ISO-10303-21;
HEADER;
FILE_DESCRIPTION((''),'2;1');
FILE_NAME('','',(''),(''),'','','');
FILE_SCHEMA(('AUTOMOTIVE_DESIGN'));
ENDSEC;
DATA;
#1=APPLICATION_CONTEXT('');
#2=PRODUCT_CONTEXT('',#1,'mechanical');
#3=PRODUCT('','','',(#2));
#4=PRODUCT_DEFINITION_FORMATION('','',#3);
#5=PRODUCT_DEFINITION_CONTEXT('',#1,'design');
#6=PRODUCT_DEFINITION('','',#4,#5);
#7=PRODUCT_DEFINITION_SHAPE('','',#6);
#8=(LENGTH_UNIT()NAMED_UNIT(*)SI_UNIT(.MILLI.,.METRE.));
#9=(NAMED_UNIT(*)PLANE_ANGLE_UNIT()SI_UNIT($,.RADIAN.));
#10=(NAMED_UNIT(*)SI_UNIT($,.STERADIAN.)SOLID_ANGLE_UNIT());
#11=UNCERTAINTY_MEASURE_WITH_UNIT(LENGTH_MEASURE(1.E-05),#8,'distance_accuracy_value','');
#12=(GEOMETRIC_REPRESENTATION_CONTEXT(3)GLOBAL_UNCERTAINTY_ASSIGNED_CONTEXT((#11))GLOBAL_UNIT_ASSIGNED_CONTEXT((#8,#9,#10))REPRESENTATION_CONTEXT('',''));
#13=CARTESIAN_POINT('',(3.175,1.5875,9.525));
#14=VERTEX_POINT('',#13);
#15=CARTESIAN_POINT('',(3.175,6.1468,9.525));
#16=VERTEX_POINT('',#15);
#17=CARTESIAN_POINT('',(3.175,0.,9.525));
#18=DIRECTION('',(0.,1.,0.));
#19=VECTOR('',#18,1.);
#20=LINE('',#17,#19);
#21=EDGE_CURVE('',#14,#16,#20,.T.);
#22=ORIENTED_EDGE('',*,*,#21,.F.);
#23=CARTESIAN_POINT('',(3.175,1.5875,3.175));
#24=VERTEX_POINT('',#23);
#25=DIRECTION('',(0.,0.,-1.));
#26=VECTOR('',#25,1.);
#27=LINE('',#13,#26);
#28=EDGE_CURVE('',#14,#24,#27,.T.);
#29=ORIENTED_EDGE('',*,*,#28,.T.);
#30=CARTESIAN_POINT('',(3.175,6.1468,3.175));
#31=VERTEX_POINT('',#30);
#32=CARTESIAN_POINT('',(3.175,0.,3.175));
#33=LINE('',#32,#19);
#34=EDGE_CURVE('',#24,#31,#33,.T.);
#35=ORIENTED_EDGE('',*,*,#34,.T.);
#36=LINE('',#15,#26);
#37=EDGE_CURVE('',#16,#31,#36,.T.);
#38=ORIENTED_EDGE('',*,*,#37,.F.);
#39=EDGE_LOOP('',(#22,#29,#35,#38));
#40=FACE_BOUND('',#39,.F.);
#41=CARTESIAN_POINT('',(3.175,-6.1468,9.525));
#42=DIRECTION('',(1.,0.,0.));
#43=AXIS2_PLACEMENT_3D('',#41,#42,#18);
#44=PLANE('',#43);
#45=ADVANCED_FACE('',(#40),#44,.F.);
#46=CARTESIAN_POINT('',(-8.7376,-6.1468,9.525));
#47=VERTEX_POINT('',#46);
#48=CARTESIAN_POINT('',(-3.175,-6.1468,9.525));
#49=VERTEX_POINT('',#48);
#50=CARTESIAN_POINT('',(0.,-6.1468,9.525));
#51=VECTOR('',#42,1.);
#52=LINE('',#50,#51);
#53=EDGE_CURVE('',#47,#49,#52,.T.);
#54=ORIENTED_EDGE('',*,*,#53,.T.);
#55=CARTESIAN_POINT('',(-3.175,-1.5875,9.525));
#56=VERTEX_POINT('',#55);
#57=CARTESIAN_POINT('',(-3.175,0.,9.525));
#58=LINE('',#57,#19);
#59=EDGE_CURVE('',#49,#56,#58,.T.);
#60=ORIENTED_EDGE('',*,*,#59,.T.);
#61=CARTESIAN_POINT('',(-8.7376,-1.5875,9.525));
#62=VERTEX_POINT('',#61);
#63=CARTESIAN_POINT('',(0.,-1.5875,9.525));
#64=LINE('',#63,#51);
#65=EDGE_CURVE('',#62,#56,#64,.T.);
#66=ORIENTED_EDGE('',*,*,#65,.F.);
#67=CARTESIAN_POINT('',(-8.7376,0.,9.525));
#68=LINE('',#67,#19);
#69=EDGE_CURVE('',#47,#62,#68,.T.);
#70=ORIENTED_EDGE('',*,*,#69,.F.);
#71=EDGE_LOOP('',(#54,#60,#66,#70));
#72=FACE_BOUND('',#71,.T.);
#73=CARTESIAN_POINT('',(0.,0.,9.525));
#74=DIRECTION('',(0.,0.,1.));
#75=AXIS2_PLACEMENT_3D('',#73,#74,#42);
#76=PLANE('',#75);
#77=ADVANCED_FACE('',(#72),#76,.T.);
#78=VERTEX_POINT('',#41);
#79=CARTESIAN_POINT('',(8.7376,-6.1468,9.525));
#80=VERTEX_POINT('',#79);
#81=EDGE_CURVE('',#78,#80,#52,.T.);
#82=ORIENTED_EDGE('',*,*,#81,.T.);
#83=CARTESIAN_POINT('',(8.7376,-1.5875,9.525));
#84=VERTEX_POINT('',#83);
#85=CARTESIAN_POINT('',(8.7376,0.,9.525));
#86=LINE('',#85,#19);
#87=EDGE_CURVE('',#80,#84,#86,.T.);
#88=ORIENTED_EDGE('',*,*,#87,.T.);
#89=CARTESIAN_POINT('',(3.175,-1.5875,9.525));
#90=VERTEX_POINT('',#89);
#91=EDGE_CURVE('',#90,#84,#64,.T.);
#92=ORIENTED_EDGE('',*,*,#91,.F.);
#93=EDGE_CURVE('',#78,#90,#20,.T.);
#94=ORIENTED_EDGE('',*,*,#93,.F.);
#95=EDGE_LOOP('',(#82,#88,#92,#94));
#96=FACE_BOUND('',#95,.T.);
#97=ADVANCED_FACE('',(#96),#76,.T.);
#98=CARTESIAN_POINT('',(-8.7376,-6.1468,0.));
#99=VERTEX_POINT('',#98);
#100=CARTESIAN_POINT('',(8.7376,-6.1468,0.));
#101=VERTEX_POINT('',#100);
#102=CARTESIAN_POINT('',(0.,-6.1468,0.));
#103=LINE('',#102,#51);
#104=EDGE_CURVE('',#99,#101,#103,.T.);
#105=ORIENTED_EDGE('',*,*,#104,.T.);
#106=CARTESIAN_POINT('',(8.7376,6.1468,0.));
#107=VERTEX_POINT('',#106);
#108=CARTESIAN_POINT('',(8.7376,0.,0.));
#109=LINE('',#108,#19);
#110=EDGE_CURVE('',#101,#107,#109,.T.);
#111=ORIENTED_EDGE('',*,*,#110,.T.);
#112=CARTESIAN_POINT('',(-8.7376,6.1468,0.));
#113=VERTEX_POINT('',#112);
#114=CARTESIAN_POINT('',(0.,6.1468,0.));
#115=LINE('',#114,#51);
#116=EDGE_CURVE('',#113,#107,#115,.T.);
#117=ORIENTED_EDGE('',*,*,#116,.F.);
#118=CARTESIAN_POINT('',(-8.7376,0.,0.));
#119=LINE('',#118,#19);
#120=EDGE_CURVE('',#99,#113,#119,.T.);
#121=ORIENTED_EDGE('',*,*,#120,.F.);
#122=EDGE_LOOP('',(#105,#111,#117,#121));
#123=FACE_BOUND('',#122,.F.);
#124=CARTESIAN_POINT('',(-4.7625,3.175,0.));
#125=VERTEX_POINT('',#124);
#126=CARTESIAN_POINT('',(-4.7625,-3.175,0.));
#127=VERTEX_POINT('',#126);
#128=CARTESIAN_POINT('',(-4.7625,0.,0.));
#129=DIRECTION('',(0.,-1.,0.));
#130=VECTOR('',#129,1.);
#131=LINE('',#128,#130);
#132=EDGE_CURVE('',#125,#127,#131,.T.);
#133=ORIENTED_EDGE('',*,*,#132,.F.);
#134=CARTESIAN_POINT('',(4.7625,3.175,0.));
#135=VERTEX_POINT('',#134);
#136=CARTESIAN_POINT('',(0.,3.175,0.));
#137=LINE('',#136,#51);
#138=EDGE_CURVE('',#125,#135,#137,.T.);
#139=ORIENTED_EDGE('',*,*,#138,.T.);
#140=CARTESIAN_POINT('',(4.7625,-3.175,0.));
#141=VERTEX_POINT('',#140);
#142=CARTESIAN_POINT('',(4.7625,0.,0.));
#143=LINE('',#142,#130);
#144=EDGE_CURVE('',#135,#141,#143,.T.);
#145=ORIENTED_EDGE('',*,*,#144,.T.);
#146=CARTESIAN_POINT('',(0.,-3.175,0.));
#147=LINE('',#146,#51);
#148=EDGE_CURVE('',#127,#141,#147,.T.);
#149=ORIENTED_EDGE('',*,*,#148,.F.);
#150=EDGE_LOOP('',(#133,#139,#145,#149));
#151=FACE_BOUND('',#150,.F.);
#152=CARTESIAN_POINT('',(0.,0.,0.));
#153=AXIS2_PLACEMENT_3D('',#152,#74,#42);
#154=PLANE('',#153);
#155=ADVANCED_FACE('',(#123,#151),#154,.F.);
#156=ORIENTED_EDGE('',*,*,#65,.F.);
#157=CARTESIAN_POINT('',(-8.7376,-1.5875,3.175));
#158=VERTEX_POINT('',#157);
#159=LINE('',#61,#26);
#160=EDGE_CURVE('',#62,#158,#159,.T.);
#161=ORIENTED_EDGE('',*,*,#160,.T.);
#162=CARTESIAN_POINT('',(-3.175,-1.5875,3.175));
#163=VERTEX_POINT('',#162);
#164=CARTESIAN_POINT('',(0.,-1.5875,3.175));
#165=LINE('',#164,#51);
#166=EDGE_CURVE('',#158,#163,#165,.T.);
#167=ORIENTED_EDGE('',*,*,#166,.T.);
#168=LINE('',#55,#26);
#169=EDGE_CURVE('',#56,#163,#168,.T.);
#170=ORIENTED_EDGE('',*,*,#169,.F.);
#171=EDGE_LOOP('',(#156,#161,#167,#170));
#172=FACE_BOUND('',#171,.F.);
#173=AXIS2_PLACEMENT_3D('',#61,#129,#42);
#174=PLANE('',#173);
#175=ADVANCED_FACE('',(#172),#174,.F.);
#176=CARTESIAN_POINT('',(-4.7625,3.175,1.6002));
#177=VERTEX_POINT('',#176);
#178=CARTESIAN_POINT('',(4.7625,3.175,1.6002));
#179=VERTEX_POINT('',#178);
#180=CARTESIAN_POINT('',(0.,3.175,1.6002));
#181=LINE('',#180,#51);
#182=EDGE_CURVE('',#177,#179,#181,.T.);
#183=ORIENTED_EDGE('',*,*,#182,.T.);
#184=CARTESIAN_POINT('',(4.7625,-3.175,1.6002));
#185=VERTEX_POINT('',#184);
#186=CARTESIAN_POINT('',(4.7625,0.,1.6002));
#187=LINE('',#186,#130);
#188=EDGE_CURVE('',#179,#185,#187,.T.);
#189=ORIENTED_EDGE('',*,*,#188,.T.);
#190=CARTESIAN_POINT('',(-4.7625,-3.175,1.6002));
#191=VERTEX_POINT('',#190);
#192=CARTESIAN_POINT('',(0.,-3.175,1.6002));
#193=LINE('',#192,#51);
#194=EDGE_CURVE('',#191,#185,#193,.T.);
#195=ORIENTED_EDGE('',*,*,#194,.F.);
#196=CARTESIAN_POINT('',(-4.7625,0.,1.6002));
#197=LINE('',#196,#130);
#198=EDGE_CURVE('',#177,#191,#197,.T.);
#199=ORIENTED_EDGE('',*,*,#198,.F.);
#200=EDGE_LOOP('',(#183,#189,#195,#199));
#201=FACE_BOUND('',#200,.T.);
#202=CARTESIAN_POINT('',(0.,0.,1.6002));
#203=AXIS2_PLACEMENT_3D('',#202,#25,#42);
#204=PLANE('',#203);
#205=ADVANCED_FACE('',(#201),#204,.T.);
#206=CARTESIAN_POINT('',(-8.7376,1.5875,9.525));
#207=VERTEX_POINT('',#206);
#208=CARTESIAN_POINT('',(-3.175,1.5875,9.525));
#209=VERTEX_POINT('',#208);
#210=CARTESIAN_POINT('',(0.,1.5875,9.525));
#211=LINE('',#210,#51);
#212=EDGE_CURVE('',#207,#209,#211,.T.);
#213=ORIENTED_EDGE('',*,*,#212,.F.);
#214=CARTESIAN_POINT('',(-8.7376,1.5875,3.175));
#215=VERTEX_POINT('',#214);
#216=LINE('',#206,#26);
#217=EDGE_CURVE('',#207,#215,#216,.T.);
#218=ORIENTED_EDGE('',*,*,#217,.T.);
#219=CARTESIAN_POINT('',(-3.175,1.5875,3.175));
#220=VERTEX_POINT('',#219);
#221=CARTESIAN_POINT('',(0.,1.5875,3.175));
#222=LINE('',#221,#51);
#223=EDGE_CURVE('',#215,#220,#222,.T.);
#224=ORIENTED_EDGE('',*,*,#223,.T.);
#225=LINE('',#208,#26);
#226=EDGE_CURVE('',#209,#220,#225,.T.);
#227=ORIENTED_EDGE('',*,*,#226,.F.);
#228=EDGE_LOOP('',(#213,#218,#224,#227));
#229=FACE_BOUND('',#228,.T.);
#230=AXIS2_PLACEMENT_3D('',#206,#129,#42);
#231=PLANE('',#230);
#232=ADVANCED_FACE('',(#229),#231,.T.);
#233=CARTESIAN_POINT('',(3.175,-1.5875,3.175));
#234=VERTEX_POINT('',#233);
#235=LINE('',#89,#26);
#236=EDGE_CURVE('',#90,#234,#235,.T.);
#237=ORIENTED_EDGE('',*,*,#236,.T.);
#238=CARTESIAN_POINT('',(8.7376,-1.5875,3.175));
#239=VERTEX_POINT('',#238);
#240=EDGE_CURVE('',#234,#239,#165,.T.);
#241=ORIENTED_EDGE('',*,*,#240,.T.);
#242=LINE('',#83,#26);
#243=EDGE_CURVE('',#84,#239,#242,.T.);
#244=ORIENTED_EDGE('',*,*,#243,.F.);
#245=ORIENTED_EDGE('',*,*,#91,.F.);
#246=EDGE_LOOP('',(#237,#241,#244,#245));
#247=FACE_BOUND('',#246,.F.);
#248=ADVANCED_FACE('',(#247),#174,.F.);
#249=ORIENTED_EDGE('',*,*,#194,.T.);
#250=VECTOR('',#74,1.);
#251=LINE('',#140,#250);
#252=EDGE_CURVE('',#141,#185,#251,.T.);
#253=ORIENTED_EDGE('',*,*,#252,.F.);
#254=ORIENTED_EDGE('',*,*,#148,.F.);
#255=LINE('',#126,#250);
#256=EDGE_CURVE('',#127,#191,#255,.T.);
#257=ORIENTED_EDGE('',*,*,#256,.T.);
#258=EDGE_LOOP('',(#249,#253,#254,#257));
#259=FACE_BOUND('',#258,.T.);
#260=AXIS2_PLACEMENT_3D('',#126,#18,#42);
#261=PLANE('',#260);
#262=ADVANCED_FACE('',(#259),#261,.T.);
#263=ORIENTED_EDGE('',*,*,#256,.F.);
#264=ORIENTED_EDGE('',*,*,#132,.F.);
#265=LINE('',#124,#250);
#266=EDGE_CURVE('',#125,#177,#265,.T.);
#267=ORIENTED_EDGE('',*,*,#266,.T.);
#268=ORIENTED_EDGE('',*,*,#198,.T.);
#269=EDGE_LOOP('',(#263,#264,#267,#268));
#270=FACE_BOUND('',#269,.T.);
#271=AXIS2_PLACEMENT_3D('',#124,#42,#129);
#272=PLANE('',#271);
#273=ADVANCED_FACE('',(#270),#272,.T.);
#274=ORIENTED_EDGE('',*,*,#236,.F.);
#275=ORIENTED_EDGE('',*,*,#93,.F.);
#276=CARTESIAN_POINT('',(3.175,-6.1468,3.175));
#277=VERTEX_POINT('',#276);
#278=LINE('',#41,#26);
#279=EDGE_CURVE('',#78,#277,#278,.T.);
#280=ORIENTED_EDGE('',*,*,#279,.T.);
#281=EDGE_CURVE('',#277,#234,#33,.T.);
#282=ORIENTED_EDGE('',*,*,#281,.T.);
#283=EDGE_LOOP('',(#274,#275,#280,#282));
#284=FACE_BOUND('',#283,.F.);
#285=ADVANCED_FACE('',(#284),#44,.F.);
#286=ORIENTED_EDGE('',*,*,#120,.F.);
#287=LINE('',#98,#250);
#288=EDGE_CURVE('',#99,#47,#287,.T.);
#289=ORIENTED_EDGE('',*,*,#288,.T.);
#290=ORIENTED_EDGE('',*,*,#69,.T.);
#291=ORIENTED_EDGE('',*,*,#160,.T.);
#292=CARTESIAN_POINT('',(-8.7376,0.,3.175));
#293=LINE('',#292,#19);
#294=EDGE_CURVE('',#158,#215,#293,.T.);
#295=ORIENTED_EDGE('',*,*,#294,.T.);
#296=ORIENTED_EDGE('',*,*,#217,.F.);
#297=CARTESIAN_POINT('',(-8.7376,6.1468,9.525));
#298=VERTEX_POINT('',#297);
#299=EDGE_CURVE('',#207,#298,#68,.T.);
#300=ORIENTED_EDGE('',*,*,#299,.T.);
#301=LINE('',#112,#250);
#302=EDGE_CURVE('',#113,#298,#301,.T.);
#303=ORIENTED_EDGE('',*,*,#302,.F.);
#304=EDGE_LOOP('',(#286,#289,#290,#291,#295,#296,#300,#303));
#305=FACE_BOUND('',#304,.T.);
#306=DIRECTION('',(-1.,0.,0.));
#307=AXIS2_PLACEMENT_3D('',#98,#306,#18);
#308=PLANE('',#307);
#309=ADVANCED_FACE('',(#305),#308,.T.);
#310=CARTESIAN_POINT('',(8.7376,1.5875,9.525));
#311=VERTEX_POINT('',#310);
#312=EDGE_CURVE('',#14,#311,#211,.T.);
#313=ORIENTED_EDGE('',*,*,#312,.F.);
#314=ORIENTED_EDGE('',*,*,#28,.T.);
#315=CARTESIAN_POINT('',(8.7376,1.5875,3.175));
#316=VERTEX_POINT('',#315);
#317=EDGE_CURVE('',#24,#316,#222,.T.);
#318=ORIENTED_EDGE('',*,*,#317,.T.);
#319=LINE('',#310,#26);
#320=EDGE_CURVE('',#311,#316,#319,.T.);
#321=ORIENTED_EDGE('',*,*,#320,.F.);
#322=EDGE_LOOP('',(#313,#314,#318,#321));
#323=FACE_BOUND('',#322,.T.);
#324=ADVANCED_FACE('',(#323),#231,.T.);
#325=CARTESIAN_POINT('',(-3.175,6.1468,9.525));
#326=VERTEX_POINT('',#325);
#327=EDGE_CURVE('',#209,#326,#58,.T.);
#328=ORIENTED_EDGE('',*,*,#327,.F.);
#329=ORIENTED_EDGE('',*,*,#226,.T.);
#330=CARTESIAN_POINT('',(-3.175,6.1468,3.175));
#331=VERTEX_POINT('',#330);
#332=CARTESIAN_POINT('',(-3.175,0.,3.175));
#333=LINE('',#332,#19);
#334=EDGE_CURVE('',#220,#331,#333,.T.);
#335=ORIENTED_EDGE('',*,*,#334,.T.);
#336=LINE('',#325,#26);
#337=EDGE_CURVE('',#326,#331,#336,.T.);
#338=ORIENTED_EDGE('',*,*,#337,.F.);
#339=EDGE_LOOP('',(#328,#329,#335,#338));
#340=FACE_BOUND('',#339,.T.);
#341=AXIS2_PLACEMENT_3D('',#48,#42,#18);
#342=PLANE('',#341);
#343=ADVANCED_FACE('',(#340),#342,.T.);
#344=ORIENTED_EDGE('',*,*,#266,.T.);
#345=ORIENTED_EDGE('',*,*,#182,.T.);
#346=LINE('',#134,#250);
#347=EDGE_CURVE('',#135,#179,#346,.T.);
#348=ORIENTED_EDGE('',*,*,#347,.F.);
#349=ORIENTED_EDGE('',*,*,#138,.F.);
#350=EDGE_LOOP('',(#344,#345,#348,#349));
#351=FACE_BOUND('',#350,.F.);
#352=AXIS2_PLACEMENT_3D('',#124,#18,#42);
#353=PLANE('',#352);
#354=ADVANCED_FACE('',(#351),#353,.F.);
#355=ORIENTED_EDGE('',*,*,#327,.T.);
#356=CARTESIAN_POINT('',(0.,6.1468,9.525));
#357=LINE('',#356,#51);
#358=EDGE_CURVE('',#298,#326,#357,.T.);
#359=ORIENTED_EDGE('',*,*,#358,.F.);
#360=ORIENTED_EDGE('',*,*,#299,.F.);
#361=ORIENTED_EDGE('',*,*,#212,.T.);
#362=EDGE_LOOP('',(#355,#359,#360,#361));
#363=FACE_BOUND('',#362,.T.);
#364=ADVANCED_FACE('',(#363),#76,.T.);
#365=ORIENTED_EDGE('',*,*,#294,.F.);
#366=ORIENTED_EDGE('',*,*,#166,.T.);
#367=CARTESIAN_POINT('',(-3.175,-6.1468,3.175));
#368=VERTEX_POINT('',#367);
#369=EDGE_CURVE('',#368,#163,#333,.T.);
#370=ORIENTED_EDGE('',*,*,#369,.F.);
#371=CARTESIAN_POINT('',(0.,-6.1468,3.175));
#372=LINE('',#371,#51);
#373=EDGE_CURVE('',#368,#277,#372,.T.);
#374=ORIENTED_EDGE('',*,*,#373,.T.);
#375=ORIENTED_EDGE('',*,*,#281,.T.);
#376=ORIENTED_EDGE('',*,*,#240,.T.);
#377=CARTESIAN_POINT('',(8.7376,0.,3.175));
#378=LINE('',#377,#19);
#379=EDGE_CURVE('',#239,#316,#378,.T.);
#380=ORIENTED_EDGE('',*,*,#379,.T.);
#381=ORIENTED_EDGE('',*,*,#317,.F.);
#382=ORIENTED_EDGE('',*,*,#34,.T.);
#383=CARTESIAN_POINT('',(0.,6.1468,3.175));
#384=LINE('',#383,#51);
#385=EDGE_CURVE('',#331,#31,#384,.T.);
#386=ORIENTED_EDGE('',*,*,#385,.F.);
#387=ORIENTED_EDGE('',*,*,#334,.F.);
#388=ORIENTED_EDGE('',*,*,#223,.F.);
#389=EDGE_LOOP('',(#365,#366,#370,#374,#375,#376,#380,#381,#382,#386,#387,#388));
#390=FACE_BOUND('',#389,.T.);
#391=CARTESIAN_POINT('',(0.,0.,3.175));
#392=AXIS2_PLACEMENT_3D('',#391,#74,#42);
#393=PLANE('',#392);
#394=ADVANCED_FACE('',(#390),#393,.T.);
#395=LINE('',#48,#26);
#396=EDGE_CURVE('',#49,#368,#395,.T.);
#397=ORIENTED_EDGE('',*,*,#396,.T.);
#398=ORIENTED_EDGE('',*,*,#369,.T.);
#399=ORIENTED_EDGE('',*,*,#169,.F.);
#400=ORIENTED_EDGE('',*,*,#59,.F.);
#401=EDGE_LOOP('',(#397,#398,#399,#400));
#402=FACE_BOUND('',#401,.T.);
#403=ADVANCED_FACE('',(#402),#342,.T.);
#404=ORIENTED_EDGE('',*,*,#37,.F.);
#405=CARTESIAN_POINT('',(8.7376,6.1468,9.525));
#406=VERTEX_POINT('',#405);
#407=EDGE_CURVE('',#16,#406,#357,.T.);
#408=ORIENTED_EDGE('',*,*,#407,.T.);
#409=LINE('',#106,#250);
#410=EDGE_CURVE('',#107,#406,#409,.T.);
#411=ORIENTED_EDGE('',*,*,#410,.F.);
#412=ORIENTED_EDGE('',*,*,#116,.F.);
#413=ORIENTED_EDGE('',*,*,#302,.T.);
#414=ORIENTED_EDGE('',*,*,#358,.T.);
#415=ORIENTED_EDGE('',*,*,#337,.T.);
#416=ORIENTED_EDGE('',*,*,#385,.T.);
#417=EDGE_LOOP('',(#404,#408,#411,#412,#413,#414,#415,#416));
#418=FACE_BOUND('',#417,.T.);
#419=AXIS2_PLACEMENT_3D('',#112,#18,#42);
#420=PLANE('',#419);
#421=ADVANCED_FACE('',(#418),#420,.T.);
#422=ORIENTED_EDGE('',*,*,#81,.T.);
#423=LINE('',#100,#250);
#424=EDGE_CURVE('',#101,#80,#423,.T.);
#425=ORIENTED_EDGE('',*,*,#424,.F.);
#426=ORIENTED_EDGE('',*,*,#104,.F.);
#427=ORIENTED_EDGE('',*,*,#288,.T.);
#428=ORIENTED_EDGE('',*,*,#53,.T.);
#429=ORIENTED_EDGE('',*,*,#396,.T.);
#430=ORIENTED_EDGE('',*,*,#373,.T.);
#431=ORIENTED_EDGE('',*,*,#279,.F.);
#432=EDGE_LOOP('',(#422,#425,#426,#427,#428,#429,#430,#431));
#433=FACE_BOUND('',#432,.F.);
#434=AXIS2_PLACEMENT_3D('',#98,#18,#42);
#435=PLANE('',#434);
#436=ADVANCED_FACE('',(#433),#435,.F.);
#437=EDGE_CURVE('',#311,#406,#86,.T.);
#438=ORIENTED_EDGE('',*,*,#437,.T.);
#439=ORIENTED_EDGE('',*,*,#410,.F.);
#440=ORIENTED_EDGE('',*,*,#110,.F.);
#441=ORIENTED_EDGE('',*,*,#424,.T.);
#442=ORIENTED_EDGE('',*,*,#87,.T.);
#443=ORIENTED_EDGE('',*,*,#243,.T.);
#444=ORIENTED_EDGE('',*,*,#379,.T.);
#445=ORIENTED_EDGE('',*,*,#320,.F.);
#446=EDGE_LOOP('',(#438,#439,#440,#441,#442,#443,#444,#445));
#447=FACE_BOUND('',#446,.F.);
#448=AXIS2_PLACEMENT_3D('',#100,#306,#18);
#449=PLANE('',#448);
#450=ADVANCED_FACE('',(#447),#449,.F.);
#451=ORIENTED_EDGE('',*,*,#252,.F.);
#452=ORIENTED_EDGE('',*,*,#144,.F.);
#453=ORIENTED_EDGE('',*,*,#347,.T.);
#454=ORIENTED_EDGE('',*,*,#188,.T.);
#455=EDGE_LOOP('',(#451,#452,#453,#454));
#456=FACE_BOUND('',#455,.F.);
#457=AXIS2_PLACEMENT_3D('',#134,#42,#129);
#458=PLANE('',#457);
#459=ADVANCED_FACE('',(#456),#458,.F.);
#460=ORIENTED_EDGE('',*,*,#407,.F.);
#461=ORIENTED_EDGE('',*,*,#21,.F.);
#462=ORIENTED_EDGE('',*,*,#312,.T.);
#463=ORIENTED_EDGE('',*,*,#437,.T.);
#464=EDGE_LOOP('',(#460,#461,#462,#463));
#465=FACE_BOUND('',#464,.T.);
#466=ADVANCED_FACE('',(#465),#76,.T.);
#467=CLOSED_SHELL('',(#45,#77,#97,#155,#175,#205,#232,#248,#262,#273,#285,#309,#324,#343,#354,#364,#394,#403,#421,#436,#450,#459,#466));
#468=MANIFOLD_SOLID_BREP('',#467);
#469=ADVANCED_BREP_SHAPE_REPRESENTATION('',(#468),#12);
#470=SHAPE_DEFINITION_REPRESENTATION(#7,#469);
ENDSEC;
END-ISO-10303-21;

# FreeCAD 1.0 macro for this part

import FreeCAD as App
import Part
import Sketcher

V = App.Vector
Q = App.Units.Quantity


def add_polygon(sketch, points):
    """Adds a closed chain of lines whose ends are joined by coincident constraints."""
    first, n = sketch.GeometryCount, len(points)
    for a, b in zip(points, points[1:] + points[:1]):
        sketch.addGeometry(Part.LineSegment(App.Vector(*a, 0), App.Vector(*b, 0)), False)
    for i in range(n):
        sketch.addConstraint(Sketcher.Constraint("Coincident", first + i, 2, first + (i + 1) % n, 1))

doc = App.newDocument("Part")
body = doc.addObject("PartDesign::Body", "Body")

sketch1 = body.newObject("Sketcher::SketchObject", "Sketch")
sketch1.AttachmentSupport = (doc.getObject("XY_Plane"), [""])
sketch1.MapMode = "FlatFace"
add_polygon(sketch1, [(-9, 6), (-9, -6), (9, -6), (9, 6)])
sketch1.addConstraint(Sketcher.Constraint("Vertical", 0))
sketch1.addConstraint(Sketcher.Constraint("Horizontal", 1))
sketch1.addConstraint(Sketcher.Constraint("Vertical", 2))
sketch1.addConstraint(Sketcher.Constraint("Horizontal", 3))
sketch1.addConstraint(Sketcher.Constraint("Symmetric", 0, 2, 2, 2, -1, 1))
sketch1.addConstraint(Sketcher.Constraint("DistanceX", 1, 1, 1, 2, Q("0.688 in")))
sketch1.addConstraint(Sketcher.Constraint("DistanceY", 0, 2, 0, 1, Q("0.484 in")))
pad1 = body.newObject("PartDesign::Pad", "Pad")
pad1.Profile = sketch1
pad1.Length = Q("0.375 in")

sketch2 = body.newObject("Sketcher::SketchObject", "Sketch001")
sketch2.AttachmentSupport = (doc.getObject("XY_Plane"), [""])
sketch2.MapMode = "FlatFace"
sketch2.AttachmentOffset = App.Placement(V(0, 0, 0.375 * 25.4), App.Rotation())
add_polygon(sketch2, [(-3, 6), (-3, -6), (3, -6), (3, 6)])
sketch2.addConstraint(Sketcher.Constraint("Vertical", 0))
sketch2.addConstraint(Sketcher.Constraint("Horizontal", 1))
sketch2.addConstraint(Sketcher.Constraint("Vertical", 2))
sketch2.addConstraint(Sketcher.Constraint("Horizontal", 3))
sketch2.addConstraint(Sketcher.Constraint("Symmetric", 0, 2, 2, 2, -1, 1))
sketch2.addConstraint(Sketcher.Constraint("DistanceX", 1, 1, 1, 2, Q("0.25 in")))
sketch2.addConstraint(Sketcher.Constraint("DistanceY", 0, 2, 0, 1, Q("0.484 in")))
pocket1 = body.newObject("PartDesign::Pocket", "Pocket")
pocket1.Profile = sketch2
pocket1.Length = Q("0.25 in")

sketch3 = body.newObject("Sketcher::SketchObject", "Sketch002")
sketch3.AttachmentSupport = (doc.getObject("XY_Plane"), [""])
sketch3.MapMode = "FlatFace"
sketch3.AttachmentOffset = App.Placement(V(0, 0, 0.375 * 25.4), App.Rotation())
add_polygon(sketch3, [(-8.7, 1.6), (-8.7, -1.6), (8.7, -1.6), (8.7, 1.6)])
sketch3.addConstraint(Sketcher.Constraint("Vertical", 0))
sketch3.addConstraint(Sketcher.Constraint("Horizontal", 1))
sketch3.addConstraint(Sketcher.Constraint("Vertical", 2))
sketch3.addConstraint(Sketcher.Constraint("Horizontal", 3))
sketch3.addConstraint(Sketcher.Constraint("Symmetric", 0, 2, 2, 2, -1, 1))
sketch3.addConstraint(Sketcher.Constraint("DistanceX", 1, 1, 1, 2, Q("0.688 in")))
sketch3.addConstraint(Sketcher.Constraint("DistanceY", 0, 2, 0, 1, Q("0.125 in")))
pocket2 = body.newObject("PartDesign::Pocket", "Pocket001")
pocket2.Profile = sketch3
pocket2.Length = Q("0.25 in")

sketch4 = body.newObject("Sketcher::SketchObject", "Sketch003")
sketch4.AttachmentSupport = (doc.getObject("XY_Plane"), [""])
sketch4.MapMode = "FlatFace"
add_polygon(sketch4, [(-5, -3), (-5, 3), (5, 3), (5, -3)])
sketch4.addConstraint(Sketcher.Constraint("Vertical", 0))
sketch4.addConstraint(Sketcher.Constraint("Horizontal", 1))
sketch4.addConstraint(Sketcher.Constraint("Vertical", 2))
sketch4.addConstraint(Sketcher.Constraint("Horizontal", 3))
sketch4.addConstraint(Sketcher.Constraint("Symmetric", 0, 2, 2, 2, -1, 1))
sketch4.addConstraint(Sketcher.Constraint("DistanceY", 0, 1, 0, 2, Q("0.25 in")))
sketch4.addConstraint(Sketcher.Constraint("DistanceX", 1, 1, 1, 2, Q("0.375 in")))
pocket3 = body.newObject("PartDesign::Pocket", "Pocket002")
pocket3.Profile = sketch4
pocket3.Length = Q("0.063 in")
pocket3.Reversed = True

doc.recompute()
